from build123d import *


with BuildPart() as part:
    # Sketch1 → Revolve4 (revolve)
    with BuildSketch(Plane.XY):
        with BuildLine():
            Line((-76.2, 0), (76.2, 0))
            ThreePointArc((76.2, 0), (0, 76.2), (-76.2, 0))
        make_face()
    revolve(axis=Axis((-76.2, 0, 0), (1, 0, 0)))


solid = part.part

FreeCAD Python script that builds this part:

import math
import FreeCAD as App
import Part
import Sketcher
Q = App.Units.Quantity

doc = App.newDocument("Part")
params = doc.addObject("Spreadsheet::Sheet", "Params")
for row, (alias, value) in enumerate([
    ("sketch1_radius", "3 in"),
    ("revolution_angle", "360 deg"),
], start=1):
    params.set(f"A{row}", alias)
    params.set(f"B{row}", "=" + value)
    params.setAlias(f"B{row}", alias)

body = doc.addObject("PartDesign::Body", "Body")

# Sketch on XY plane
sketch1 = body.newObject("Sketcher::SketchObject", "Sketch")
sketch1.AttachmentSupport = (doc.getObject("XY_Plane"), [""])
sketch1.MapMode = "FlatFace"
sketch1.addGeometry(Part.LineSegment(App.Vector(-76, 0, 0), App.Vector(76, 0, 0)), False)
sketch1.addGeometry(Part.ArcOfCircle(Part.Circle(App.Vector(0, 0, 0), App.Vector(0, 0, 1), 76), math.radians(0), math.radians(180)), False)
sketch1.addConstraint(Sketcher.Constraint("Coincident", 0, 1, 1, 2))
sketch1.addConstraint(Sketcher.Constraint("Coincident", 1, 1, 0, 2))
sketch1.addConstraint(Sketcher.Constraint("Horizontal", 0))
sketch1.addConstraint(Sketcher.Constraint("Coincident", 1, 3, -1, 1))
sketch1.addConstraint(Sketcher.Constraint("PointOnObject", 0, 1, -1))
sketch1.addConstraint(Sketcher.Constraint("Radius", 1, Q("3 in")))
sketch1.setExpression("Constraints[5]", "Params.sketch1_radius")
revolution = body.newObject("PartDesign::Revolution", "Revolution")
revolution.Profile = sketch1
revolution.ReferenceAxis = (sketch1, ["H_Axis"])
revolution.setExpression("Angle", "Params.revolution_angle")

doc.recompute()
